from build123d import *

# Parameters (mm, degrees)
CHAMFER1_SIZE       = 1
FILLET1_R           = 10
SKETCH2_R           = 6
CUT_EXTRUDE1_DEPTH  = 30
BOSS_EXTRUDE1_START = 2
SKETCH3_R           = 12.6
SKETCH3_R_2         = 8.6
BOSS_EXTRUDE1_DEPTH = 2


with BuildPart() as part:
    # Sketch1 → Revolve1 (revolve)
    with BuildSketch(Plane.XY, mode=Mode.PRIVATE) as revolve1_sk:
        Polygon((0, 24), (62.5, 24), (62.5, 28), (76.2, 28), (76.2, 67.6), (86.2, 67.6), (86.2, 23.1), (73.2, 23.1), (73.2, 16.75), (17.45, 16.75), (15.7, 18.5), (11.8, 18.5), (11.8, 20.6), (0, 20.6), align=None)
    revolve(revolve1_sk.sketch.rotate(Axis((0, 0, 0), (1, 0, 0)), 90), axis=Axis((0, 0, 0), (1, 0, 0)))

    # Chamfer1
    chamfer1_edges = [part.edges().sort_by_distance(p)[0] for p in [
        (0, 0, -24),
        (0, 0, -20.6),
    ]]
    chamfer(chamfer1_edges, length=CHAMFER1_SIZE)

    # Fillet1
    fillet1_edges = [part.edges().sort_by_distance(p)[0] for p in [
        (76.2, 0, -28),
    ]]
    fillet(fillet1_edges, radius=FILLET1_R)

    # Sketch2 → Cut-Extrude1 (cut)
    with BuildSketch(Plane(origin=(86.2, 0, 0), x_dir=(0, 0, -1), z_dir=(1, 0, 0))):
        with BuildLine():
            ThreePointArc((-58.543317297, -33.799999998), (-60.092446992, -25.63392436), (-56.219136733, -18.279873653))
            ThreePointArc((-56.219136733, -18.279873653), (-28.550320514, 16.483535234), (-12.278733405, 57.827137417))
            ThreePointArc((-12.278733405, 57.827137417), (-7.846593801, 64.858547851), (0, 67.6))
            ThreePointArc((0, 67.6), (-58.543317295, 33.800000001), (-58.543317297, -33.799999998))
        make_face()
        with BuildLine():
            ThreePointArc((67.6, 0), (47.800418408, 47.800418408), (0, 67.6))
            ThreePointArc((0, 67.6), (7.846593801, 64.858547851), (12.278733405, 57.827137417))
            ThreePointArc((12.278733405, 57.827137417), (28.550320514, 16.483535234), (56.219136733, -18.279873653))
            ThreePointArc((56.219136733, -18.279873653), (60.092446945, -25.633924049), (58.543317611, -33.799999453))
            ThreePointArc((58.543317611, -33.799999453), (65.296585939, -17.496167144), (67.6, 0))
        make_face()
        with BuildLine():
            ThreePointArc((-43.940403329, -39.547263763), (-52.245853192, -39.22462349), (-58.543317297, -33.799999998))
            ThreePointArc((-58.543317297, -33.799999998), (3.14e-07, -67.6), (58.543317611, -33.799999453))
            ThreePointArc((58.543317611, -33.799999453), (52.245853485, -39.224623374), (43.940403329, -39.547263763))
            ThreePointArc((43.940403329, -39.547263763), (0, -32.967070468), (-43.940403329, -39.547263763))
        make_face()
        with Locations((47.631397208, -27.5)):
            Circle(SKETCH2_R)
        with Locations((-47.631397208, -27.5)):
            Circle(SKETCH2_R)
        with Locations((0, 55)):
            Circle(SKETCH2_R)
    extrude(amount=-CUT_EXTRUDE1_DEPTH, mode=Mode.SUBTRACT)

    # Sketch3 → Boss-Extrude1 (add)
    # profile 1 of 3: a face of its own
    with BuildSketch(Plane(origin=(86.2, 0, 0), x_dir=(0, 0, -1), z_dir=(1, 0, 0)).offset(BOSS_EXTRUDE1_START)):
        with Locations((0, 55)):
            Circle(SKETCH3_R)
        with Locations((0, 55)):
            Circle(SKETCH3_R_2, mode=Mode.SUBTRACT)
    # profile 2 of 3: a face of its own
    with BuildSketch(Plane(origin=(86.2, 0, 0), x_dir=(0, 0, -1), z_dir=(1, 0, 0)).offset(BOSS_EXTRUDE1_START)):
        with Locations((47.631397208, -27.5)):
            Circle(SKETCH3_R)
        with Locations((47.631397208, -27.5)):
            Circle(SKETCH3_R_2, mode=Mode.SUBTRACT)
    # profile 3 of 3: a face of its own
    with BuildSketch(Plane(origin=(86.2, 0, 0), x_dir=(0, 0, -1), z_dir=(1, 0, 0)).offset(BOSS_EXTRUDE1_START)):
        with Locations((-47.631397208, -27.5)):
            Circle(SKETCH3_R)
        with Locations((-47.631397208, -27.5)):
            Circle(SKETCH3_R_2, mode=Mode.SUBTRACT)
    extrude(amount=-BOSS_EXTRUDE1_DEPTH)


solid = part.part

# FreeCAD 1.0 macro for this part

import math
import FreeCAD as App
import Part
import Sketcher

V = App.Vector
Q = App.Units.Quantity


def edges_at(feature, points):
    """Names of the edges that pass closest to the given points."""
    edges = feature.Shape.Edges
    near = lambda p: min(range(len(edges)), key=lambda i: edges[i].distToShape(Part.Vertex(*p))[0])
    return sorted({f"Edge{near(p) + 1}" for p in points})


def add_polygon(sketch, points):
    """Adds a closed chain of lines whose ends are joined by coincident constraints."""
    first, n = sketch.GeometryCount, len(points)
    for a, b in zip(points, points[1:] + points[:1]):
        sketch.addGeometry(Part.LineSegment(App.Vector(*a, 0), App.Vector(*b, 0)), False)
    for i in range(n):
        sketch.addConstraint(Sketcher.Constraint("Coincident", first + i, 2, first + (i + 1) % n, 1))

doc = App.newDocument("Part")
params = doc.addObject("Spreadsheet::Sheet", "Params")
for row, (alias, value) in enumerate([
    ("sketch1_width", "13 mm"),
    ("sketch1_width2", "10 mm"),
    ("sketch1_height", "4 mm"),
    ("sketch1_width3", "62.5 mm"),
    ("sketch1_width4", "11.8 mm"),
    ("revolution_angle", "360 deg"),
    ("chamfer_size", "1 mm"),
    ("fillet_radius", "10 mm"),
    ("sketch2_diameter", "12 mm"),
    ("sketch2_radius", "150 mm"),
    ("sketch2_radius2", "12.6 mm"),
    ("sketch2_radius3", "67.6 mm"),
    ("pocket1_length", "30 mm"),
    ("sketch3_diameter", "25.2 mm"),
    ("sketch3_diameter2", "17.2 mm"),
    ("pad1_length", "2 mm"),
], start=1):
    params.set(f"A{row}", alias)
    params.set(f"B{row}", "=" + value)
    params.setAlias(f"B{row}", alias)

body = doc.addObject("PartDesign::Body", "Body")

sketch1 = body.newObject("Sketcher::SketchObject", "Sketch")
sketch1.AttachmentSupport = (doc.getObject("XY_Plane"), [""])
sketch1.MapMode = "FlatFace"
add_polygon(sketch1, [(62.5, 24), (0, 24), (0, 20.6), (11.8, 20.6), (11.8, 18.5), (15.7, 18.5), (17.4, 16.8), (73.2, 16.8), (73.2, 23.1), (86.2, 23.1), (86.2, 67.6), (76.2, 67.6), (76.2, 28), (62.5, 28)])
sketch1.addConstraint(Sketcher.Constraint("Horizontal", 0))
sketch1.addConstraint(Sketcher.Constraint("Vertical", 1))
sketch1.addConstraint(Sketcher.Constraint("Horizontal", 2))
sketch1.addConstraint(Sketcher.Constraint("Vertical", 3))
sketch1.addConstraint(Sketcher.Constraint("Horizontal", 4))
sketch1.addConstraint(Sketcher.Constraint("Horizontal", 6))
sketch1.addConstraint(Sketcher.Constraint("Vertical", 7))
sketch1.addConstraint(Sketcher.Constraint("Horizontal", 8))
sketch1.addConstraint(Sketcher.Constraint("Vertical", 9))
sketch1.addConstraint(Sketcher.Constraint("Horizontal", 10))
sketch1.addConstraint(Sketcher.Constraint("Vertical", 11))
sketch1.addConstraint(Sketcher.Constraint("Horizontal", 12))
sketch1.addConstraint(Sketcher.Constraint("Vertical", 13))
sketch1.addConstraint(Sketcher.Constraint("PointOnObject", 0, 2, -2))
sketch1.addConstraint(Sketcher.Constraint("DistanceX", 8, 1, 8, 2, 13.0))
sketch1.addConstraint(Sketcher.Constraint("DistanceX", 10, 2, 10, 1, 10.0))
sketch1.addConstraint(Sketcher.Constraint("DistanceY", 13, 2, 13, 1, 4.0))
sketch1.addConstraint(Sketcher.Constraint("Angle", 5, Q("-45 deg")))
sketch1.addConstraint(Sketcher.Constraint("DistanceX", 0, 2, 0, 1, 62.5))
sketch1.addConstraint(Sketcher.Constraint("DistanceX", 2, 1, 2, 2, 11.8))
sketch1.addConstraint(Sketcher.Constraint("DistanceX", 4, 1, 4, 2, 3.9))
sketch1.addConstraint(Sketcher.Constraint("DistanceX", 12, 2, 12, 1, 13.7))
sketch1.addConstraint(Sketcher.Constraint("DistanceY", 1, 2, 1, 1, 3.4))
sketch1.addConstraint(Sketcher.Constraint("DistanceY", 3, 2, 3, 1, 2.1))
sketch1.addConstraint(Sketcher.Constraint("DistanceY", 9, 1, 9, 2, 44.5))
sketch1.addConstraint(Sketcher.Constraint("DistanceY", 11, 2, 11, 1, 39.6))
sketch1.addConstraint(Sketcher.Constraint("DistanceY", -1, 1, 0, 2, 24.0))
sketch1.addConstraint(Sketcher.Constraint("DistanceX", 6, 1, 6, 2, 55.75))
sketch1.setExpression("Constraints[28]", "Params.sketch1_width")
sketch1.setExpression("Constraints[29]", "Params.sketch1_width2")
sketch1.setExpression("Constraints[30]", "Params.sketch1_height")
sketch1.setExpression("Constraints[32]", "Params.sketch1_width3")
sketch1.setExpression("Constraints[33]", "Params.sketch1_width4")
revolution = body.newObject("PartDesign::Revolution", "Revolution")
revolution.Profile = sketch1
revolution.ReferenceAxis = (sketch1, ["H_Axis"])
revolution.setExpression("Angle", "Params.revolution_angle")
doc.recompute()

chamfer = body.newObject("PartDesign::Chamfer", "Chamfer")
chamfer.Base = (revolution, edges_at(revolution, [(0, 0, -24), (0, 0, -20.6)]))
chamfer.setExpression("Size", "Params.chamfer_size")
doc.recompute()

fillet = body.newObject("PartDesign::Fillet", "Fillet")
fillet.Base = (chamfer, edges_at(chamfer, [(76.2, 0, -28)]))
fillet.setExpression("Radius", "Params.fillet_radius")

sketch2 = body.newObject("Sketcher::SketchObject", "Sketch001")
sketch2.AttachmentSupport = (doc.getObject("YZ_Plane"), [""])
sketch2.MapMode = "FlatFace"
sketch2.AttachmentOffset = App.Placement(V(0, 0, 86.2), App.Rotation())
sketch2.addGeometry(Part.ArcOfCircle(Part.Circle(V(-28, 48, 0), V(0, 0, 1), 13), math.radians(43), math.radians(120)), False)
sketch2.addGeometry(Part.ArcOfCircle(Part.Circle(V(91, 158, 0), V(0, 0, 1), 150), math.radians(-137), math.radians(-103)), False)
sketch2.addGeometry(Part.ArcOfCircle(Part.Circle(V(55, 0, 0), V(0, 0, 1), 13), math.radians(0), math.radians(77)), False)
sketch2.addGeometry(Part.ArcOfCircle(Part.Circle(V(0, 0, 0), V(0, 0, 1), 68), math.radians(0), math.radians(120)), False)
sketch2.addGeometry(Part.ArcOfCircle(Part.Circle(V(0, 0, 0), V(0, 0, 1), 68), math.radians(-90), math.radians(0)), False)
sketch2.addGeometry(Part.ArcOfCircle(Part.Circle(V(55, 0, 0), V(0, 0, 1), 13), math.radians(-77), math.radians(0)), False)
sketch2.addGeometry(Part.ArcOfCircle(Part.Circle(V(91, -158, 0), V(0, 0, 1), 150), math.radians(103), math.radians(137)), False)
sketch2.addGeometry(Part.ArcOfCircle(Part.Circle(V(-27, -48, 0), V(0, 0, 1), 13), math.radians(-120), math.radians(-43)), False)
sketch2.addGeometry(Part.ArcOfCircle(Part.Circle(V(0, 0, 0), V(0, 0, 1), 68), math.radians(-120), math.radians(-90)), False)
sketch2.addGeometry(Part.ArcOfCircle(Part.Circle(V(-28, 48, 0), V(0, 0, 1), 13), math.radians(120), math.radians(197)), False)
sketch2.addGeometry(Part.ArcOfCircle(Part.Circle(V(0, 0, 0), V(0, 0, 1), 68), math.radians(120), math.radians(240)), False)
sketch2.addGeometry(Part.ArcOfCircle(Part.Circle(V(-28, -48, 0), V(0, 0, 1), 13), math.radians(163), math.radians(240)), False)
sketch2.addGeometry(Part.ArcOfCircle(Part.Circle(V(-183, 0, 0), V(0, 0, 1), 150), math.radians(-17), math.radians(17)), False)
sketch2.addGeometry(Part.Circle(V(-28, -48, 0), V(0, 0, 1), 6), False)
sketch2.addGeometry(Part.Circle(V(-28, 48, 0), V(0, 0, 1), 6), False)
sketch2.addGeometry(Part.Circle(V(55, 0, 0), V(0, 0, 1), 6), False)
sketch2.addConstraint(Sketcher.Constraint("Tangent", 0, 1, 1, 1))
sketch2.addConstraint(Sketcher.Constraint("Tangent", 1, 2, 2, 2))
sketch2.addConstraint(Sketcher.Constraint("Tangent", 2, 1, 3, 1))
sketch2.addConstraint(Sketcher.Constraint("Tangent", 3, 2, 0, 2))
sketch2.addConstraint(Sketcher.Constraint("Tangent", 4, 2, 5, 2))
sketch2.addConstraint(Sketcher.Constraint("Tangent", 5, 1, 6, 1))
sketch2.addConstraint(Sketcher.Constraint("Tangent", 6, 2, 7, 2))
sketch2.addConstraint(Sketcher.Constraint("Tangent", 7, 1, 8, 1))
sketch2.addConstraint(Sketcher.Constraint("Tangent", 8, 2, 4, 1))
sketch2.addConstraint(Sketcher.Constraint("Tangent", 9, 1, 10, 1))
sketch2.addConstraint(Sketcher.Constraint("Tangent", 10, 2, 11, 2))
sketch2.addConstraint(Sketcher.Constraint("Tangent", 11, 1, 12, 1))
sketch2.addConstraint(Sketcher.Constraint("Tangent", 12, 2, 9, 2))
sketch2.addConstraint(Sketcher.Constraint("Coincident", 3, 3, -1, 1))
sketch2.addConstraint(Sketcher.Constraint("Coincident", 4, 3, -1, 1))
sketch2.addConstraint(Sketcher.Constraint("Coincident", 10, 3, -1, 1))
sketch2.addConstraint(Sketcher.Constraint("Coincident", 5, 3, 2, 3))
sketch2.addConstraint(Sketcher.Constraint("Coincident", 9, 3, 0, 3))
sketch2.addConstraint(Sketcher.Constraint("Coincident", 11, 3, 7, 3))
sketch2.addConstraint(Sketcher.Constraint("Coincident", 13, 3, 7, 3))
sketch2.addConstraint(Sketcher.Constraint("Coincident", 14, 3, 0, 3))
sketch2.addConstraint(Sketcher.Constraint("Coincident", 15, 3, 2, 3))
sketch2.addConstraint(Sketcher.Constraint("Coincident", 10, 2, 7, 1))
sketch2.addConstraint(Sketcher.Constraint("Equal", 0, 2))
sketch2.addConstraint(Sketcher.Constraint("Equal", 3, 4))
sketch2.addConstraint(Sketcher.Constraint("Equal", 1, 6))
sketch2.addConstraint(Sketcher.Constraint("Equal", 5, 7))
sketch2.addConstraint(Sketcher.Constraint("Equal", 6, 12))
sketch2.addConstraint(Sketcher.Constraint("Equal", 13, 14))
sketch2.addConstraint(Sketcher.Constraint("Equal", 14, 15))
sketch2.addConstraint(Sketcher.Constraint("Symmetric", 1, 3, 6, 3, -1))
sketch2.addConstraint(Sketcher.Constraint("PointOnObject", 8, 2, -2))
sketch2.addConstraint(Sketcher.Constraint("Diameter", 13, 12.0))
sketch2.addConstraint(Sketcher.Constraint("Radius", 1, 150.0))
sketch2.addConstraint(Sketcher.Constraint("Radius", 0, 12.6))
sketch2.addConstraint(Sketcher.Constraint("Radius", 3, 67.6))
sketch2.addConstraint(Sketcher.Constraint("DistanceX", 0, 3, -1, 1, 27.5))
sketch2.setExpression("Constraints[32]", "Params.sketch2_diameter")
sketch2.setExpression("Constraints[33]", "Params.sketch2_radius")
sketch2.setExpression("Constraints[34]", "Params.sketch2_radius2")
sketch2.setExpression("Constraints[35]", "Params.sketch2_radius3")
pocket1 = body.newObject("PartDesign::Pocket", "Pocket")
pocket1.Profile = sketch2
pocket1.setExpression("Length", "Params.pocket1_length")

sketch3 = body.newObject("Sketcher::SketchObject", "Sketch002")
sketch3.AttachmentSupport = (doc.getObject("YZ_Plane"), [""])
sketch3.MapMode = "FlatFace"
sketch3.AttachmentOffset = App.Placement(V(0, 0, 88.2), App.Rotation())
sketch3.addGeometry(Part.Circle(V(55, 0, 0), V(0, 0, 1), 13), False)
sketch3.addGeometry(Part.Circle(V(55, 0, 0), V(0, 0, 1), 9), False)
sketch3.addGeometry(Part.Circle(V(-28, -48, 0), V(0, 0, 1), 13), False)
sketch3.addGeometry(Part.Circle(V(-28, -48, 0), V(0, 0, 1), 9), False)
sketch3.addGeometry(Part.Circle(V(-28, 48, 0), V(0, 0, 1), 13), False)
sketch3.addGeometry(Part.Circle(V(-28, 48, 0), V(0, 0, 1), 9), False)
sketch3.addConstraint(Sketcher.Constraint("Coincident", 1, 3, 0, 3))
sketch3.addConstraint(Sketcher.Constraint("Coincident", 3, 3, 2, 3))
sketch3.addConstraint(Sketcher.Constraint("Coincident", 5, 3, 4, 3))
sketch3.addConstraint(Sketcher.Constraint("Equal", 0, 2))
sketch3.addConstraint(Sketcher.Constraint("Equal", 1, 3))
sketch3.addConstraint(Sketcher.Constraint("Equal", 2, 4))
sketch3.addConstraint(Sketcher.Constraint("Equal", 3, 5))
sketch3.addConstraint(Sketcher.Constraint("Symmetric", 2, 3, 4, 3, -1))
sketch3.addConstraint(Sketcher.Constraint("PointOnObject", 0, 3, -1))
sketch3.addConstraint(Sketcher.Constraint("Diameter", 0, 25.2))
sketch3.addConstraint(Sketcher.Constraint("Diameter", 1, 17.2))
sketch3.addConstraint(Sketcher.Constraint("DistanceX", -1, 1, 0, 3, 55.0))
sketch3.addConstraint(Sketcher.Constraint("DistanceX", 2, 3, -1, 1, 27.5))
sketch3.addConstraint(Sketcher.Constraint("DistanceY", 2, 3, -1, 1, 47.631397))
sketch3.setExpression("Constraints[9]", "Params.sketch3_diameter")
sketch3.setExpression("Constraints[10]", "Params.sketch3_diameter2")
pad1 = body.newObject("PartDesign::Pad", "Pad")
pad1.Profile = sketch3
pad1.setExpression("Length", "Params.pad1_length")
pad1.Reversed = True

doc.recompute()
